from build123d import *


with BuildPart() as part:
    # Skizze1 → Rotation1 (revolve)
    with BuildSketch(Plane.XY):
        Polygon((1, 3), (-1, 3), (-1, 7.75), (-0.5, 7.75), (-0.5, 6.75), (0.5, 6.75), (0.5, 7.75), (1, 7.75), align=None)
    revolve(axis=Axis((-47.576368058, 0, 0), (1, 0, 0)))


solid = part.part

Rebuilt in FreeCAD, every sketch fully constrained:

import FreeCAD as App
import Part
import Sketcher

doc = App.newDocument("Part")
params = doc.addObject("Spreadsheet::Sheet", "Params")
for row, (alias, value) in enumerate([
    ("sketch1_width", "2 mm"),
    ("sketch1_width2", "1 mm"),
    ("sketch1_height", "4.75 mm"),
    ("revolution_angle", "360 deg"),
], start=1):
    params.set(f"A{row}", alias)
    params.set(f"B{row}", "=" + value)
    params.setAlias(f"B{row}", alias)

body = doc.addObject("PartDesign::Body", "Body")

# Sketch on XY plane
sketch1 = body.newObject("Sketcher::SketchObject", "Sketch")
sketch1.AttachmentSupport = (doc.getObject("XY_Plane"), [""])
sketch1.MapMode = "FlatFace"
sketch1.addGeometry([
    Part.LineSegment(App.Vector(-1, 3, 0), App.Vector(1, 3, 0)),  # 0
    Part.LineSegment(App.Vector(1, 3, 0), App.Vector(1, 7.8, 0)),  # 1
    Part.LineSegment(App.Vector(1, 7.8, 0), App.Vector(0.5, 7.8, 0)),  # 2
    Part.LineSegment(App.Vector(0.5, 7.8, 0), App.Vector(0.5, 6.8, 0)),  # 3
    Part.LineSegment(App.Vector(0.5, 6.8, 0), App.Vector(-0.5, 6.8, 0)),  # 4
    Part.LineSegment(App.Vector(-0.5, 6.8, 0), App.Vector(-0.5, 7.8, 0)),  # 5
    Part.LineSegment(App.Vector(-0.5, 7.8, 0), App.Vector(-1, 7.8, 0)),  # 6
    Part.LineSegment(App.Vector(-1, 7.8, 0), App.Vector(-1, 3, 0)),  # 7
], False)
sketch1.addConstraint([
    Sketcher.Constraint("Coincident", 0, 2, 1, 1),
    Sketcher.Constraint("Coincident", 1, 2, 2, 1),
    Sketcher.Constraint("Coincident", 2, 2, 3, 1),
    Sketcher.Constraint("Coincident", 3, 2, 4, 1),
    Sketcher.Constraint("Coincident", 4, 2, 5, 1),
    Sketcher.Constraint("Coincident", 5, 2, 6, 1),
    Sketcher.Constraint("Coincident", 6, 2, 7, 1),
    Sketcher.Constraint("Coincident", 7, 2, 0, 1),
    Sketcher.Constraint("Horizontal", 0),
    Sketcher.Constraint("Vertical", 1),
    Sketcher.Constraint("Horizontal", 2),
    Sketcher.Constraint("Vertical", 3),
    Sketcher.Constraint("Horizontal", 4),
    Sketcher.Constraint("Vertical", 5),
    Sketcher.Constraint("Horizontal", 6),
    Sketcher.Constraint("Vertical", 7),
    Sketcher.Constraint("Symmetric", 2, 2, 5, 2, -2),
    Sketcher.Constraint("Equal", 2, 6),
    Sketcher.Constraint("Equal", 4, 3),
    Sketcher.Constraint("DistanceX", 0, 1, 0, 2, 2.0),
    Sketcher.Constraint("DistanceX", 4, 2, 4, 1, 1.0),
    Sketcher.Constraint("DistanceY", -1, 1, 0, 2, 3.0),
    Sketcher.Constraint("DistanceY", 1, 1, 1, 2, 4.75),
])
sketch1.setExpression("Constraints[19]", "Params.sketch1_width")
sketch1.setExpression("Constraints[20]", "Params.sketch1_width2")
sketch1.setExpression("Constraints[22]", "Params.sketch1_height")
revolution = body.newObject("PartDesign::Revolution", "Revolution")
revolution.Profile = sketch1
revolution.ReferenceAxis = (sketch1, ["H_Axis"])
revolution.setExpression("Angle", "Params.revolution_angle")

doc.recompute()
